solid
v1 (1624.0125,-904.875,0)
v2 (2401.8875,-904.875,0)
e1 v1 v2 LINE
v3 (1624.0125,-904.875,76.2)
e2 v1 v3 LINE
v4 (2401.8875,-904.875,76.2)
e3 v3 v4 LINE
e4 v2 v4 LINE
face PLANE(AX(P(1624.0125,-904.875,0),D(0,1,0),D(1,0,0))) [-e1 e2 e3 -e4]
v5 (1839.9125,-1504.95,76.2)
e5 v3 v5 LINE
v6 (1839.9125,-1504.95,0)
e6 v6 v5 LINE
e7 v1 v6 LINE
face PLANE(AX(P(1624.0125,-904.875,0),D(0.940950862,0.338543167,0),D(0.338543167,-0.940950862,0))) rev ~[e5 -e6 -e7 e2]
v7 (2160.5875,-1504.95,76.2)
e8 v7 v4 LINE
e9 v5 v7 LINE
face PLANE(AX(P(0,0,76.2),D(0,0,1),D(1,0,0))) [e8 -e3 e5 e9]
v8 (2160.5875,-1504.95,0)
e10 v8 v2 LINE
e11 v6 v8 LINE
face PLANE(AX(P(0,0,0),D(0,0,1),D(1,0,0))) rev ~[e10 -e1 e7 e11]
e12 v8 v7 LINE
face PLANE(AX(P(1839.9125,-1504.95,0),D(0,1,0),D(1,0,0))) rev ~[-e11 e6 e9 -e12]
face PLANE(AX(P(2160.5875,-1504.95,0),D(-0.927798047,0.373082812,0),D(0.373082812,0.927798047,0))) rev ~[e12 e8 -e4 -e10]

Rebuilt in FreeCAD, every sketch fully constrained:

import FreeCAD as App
import Part
import Sketcher
Q = App.Units.Quantity


def add_polygon(sketch, points):
    """Adds a closed chain of lines whose ends are joined by coincident constraints."""
    first, n = sketch.GeometryCount, len(points)
    for a, b in zip(points, points[1:] + points[:1]):
        sketch.addGeometry(Part.LineSegment(App.Vector(*a, 0), App.Vector(*b, 0)), False)
    for i in range(n):
        sketch.addConstraint(Sketcher.Constraint("Coincident", first + i, 2, first + (i + 1) % n, 1))

doc = App.newDocument("Part")
body = doc.addObject("PartDesign::Body", "Body")

# Sketch on XY plane
sketch1 = doc.addObject("Sketcher::SketchObject", "Sketch")
body.addObject(sketch1)
sketch1.AttachmentSupport = (doc.XY_Plane, [""])
sketch1.MapMode = "FlatFace"
add_polygon(sketch1, [(1624, -905), (1840, -1505), (2161, -1505), (2402, -905)])  # lines 0-3
sketch1.addConstraint([
    Sketcher.Constraint("Horizontal", 1),
    Sketcher.Constraint("Horizontal", 3),
    Sketcher.Constraint("DistanceX", 1, 1, 1, 2, Q("12.625 in")),
    Sketcher.Constraint("DistanceX", 3, 2, 3, 1, Q("30.625 in")),
    Sketcher.Constraint("DistanceY", 1, 2, 2, 2, Q("23.625 in")),
    Sketcher.Constraint("DistanceX", 1, 2, 2, 2, Q("9.5 in")),
    Sketcher.Constraint("DistanceY", 0, 2, -1, 1, Q("59.25 in")),
    Sketcher.Constraint("DistanceX", -1, 1, 0, 2, Q("72.4375 in")),
])
pad1 = doc.addObject("PartDesign::Pad", "Pad")
body.addObject(pad1)
pad1.Profile = sketch1
pad1.Length = Q("3 in")

doc.recompute()
